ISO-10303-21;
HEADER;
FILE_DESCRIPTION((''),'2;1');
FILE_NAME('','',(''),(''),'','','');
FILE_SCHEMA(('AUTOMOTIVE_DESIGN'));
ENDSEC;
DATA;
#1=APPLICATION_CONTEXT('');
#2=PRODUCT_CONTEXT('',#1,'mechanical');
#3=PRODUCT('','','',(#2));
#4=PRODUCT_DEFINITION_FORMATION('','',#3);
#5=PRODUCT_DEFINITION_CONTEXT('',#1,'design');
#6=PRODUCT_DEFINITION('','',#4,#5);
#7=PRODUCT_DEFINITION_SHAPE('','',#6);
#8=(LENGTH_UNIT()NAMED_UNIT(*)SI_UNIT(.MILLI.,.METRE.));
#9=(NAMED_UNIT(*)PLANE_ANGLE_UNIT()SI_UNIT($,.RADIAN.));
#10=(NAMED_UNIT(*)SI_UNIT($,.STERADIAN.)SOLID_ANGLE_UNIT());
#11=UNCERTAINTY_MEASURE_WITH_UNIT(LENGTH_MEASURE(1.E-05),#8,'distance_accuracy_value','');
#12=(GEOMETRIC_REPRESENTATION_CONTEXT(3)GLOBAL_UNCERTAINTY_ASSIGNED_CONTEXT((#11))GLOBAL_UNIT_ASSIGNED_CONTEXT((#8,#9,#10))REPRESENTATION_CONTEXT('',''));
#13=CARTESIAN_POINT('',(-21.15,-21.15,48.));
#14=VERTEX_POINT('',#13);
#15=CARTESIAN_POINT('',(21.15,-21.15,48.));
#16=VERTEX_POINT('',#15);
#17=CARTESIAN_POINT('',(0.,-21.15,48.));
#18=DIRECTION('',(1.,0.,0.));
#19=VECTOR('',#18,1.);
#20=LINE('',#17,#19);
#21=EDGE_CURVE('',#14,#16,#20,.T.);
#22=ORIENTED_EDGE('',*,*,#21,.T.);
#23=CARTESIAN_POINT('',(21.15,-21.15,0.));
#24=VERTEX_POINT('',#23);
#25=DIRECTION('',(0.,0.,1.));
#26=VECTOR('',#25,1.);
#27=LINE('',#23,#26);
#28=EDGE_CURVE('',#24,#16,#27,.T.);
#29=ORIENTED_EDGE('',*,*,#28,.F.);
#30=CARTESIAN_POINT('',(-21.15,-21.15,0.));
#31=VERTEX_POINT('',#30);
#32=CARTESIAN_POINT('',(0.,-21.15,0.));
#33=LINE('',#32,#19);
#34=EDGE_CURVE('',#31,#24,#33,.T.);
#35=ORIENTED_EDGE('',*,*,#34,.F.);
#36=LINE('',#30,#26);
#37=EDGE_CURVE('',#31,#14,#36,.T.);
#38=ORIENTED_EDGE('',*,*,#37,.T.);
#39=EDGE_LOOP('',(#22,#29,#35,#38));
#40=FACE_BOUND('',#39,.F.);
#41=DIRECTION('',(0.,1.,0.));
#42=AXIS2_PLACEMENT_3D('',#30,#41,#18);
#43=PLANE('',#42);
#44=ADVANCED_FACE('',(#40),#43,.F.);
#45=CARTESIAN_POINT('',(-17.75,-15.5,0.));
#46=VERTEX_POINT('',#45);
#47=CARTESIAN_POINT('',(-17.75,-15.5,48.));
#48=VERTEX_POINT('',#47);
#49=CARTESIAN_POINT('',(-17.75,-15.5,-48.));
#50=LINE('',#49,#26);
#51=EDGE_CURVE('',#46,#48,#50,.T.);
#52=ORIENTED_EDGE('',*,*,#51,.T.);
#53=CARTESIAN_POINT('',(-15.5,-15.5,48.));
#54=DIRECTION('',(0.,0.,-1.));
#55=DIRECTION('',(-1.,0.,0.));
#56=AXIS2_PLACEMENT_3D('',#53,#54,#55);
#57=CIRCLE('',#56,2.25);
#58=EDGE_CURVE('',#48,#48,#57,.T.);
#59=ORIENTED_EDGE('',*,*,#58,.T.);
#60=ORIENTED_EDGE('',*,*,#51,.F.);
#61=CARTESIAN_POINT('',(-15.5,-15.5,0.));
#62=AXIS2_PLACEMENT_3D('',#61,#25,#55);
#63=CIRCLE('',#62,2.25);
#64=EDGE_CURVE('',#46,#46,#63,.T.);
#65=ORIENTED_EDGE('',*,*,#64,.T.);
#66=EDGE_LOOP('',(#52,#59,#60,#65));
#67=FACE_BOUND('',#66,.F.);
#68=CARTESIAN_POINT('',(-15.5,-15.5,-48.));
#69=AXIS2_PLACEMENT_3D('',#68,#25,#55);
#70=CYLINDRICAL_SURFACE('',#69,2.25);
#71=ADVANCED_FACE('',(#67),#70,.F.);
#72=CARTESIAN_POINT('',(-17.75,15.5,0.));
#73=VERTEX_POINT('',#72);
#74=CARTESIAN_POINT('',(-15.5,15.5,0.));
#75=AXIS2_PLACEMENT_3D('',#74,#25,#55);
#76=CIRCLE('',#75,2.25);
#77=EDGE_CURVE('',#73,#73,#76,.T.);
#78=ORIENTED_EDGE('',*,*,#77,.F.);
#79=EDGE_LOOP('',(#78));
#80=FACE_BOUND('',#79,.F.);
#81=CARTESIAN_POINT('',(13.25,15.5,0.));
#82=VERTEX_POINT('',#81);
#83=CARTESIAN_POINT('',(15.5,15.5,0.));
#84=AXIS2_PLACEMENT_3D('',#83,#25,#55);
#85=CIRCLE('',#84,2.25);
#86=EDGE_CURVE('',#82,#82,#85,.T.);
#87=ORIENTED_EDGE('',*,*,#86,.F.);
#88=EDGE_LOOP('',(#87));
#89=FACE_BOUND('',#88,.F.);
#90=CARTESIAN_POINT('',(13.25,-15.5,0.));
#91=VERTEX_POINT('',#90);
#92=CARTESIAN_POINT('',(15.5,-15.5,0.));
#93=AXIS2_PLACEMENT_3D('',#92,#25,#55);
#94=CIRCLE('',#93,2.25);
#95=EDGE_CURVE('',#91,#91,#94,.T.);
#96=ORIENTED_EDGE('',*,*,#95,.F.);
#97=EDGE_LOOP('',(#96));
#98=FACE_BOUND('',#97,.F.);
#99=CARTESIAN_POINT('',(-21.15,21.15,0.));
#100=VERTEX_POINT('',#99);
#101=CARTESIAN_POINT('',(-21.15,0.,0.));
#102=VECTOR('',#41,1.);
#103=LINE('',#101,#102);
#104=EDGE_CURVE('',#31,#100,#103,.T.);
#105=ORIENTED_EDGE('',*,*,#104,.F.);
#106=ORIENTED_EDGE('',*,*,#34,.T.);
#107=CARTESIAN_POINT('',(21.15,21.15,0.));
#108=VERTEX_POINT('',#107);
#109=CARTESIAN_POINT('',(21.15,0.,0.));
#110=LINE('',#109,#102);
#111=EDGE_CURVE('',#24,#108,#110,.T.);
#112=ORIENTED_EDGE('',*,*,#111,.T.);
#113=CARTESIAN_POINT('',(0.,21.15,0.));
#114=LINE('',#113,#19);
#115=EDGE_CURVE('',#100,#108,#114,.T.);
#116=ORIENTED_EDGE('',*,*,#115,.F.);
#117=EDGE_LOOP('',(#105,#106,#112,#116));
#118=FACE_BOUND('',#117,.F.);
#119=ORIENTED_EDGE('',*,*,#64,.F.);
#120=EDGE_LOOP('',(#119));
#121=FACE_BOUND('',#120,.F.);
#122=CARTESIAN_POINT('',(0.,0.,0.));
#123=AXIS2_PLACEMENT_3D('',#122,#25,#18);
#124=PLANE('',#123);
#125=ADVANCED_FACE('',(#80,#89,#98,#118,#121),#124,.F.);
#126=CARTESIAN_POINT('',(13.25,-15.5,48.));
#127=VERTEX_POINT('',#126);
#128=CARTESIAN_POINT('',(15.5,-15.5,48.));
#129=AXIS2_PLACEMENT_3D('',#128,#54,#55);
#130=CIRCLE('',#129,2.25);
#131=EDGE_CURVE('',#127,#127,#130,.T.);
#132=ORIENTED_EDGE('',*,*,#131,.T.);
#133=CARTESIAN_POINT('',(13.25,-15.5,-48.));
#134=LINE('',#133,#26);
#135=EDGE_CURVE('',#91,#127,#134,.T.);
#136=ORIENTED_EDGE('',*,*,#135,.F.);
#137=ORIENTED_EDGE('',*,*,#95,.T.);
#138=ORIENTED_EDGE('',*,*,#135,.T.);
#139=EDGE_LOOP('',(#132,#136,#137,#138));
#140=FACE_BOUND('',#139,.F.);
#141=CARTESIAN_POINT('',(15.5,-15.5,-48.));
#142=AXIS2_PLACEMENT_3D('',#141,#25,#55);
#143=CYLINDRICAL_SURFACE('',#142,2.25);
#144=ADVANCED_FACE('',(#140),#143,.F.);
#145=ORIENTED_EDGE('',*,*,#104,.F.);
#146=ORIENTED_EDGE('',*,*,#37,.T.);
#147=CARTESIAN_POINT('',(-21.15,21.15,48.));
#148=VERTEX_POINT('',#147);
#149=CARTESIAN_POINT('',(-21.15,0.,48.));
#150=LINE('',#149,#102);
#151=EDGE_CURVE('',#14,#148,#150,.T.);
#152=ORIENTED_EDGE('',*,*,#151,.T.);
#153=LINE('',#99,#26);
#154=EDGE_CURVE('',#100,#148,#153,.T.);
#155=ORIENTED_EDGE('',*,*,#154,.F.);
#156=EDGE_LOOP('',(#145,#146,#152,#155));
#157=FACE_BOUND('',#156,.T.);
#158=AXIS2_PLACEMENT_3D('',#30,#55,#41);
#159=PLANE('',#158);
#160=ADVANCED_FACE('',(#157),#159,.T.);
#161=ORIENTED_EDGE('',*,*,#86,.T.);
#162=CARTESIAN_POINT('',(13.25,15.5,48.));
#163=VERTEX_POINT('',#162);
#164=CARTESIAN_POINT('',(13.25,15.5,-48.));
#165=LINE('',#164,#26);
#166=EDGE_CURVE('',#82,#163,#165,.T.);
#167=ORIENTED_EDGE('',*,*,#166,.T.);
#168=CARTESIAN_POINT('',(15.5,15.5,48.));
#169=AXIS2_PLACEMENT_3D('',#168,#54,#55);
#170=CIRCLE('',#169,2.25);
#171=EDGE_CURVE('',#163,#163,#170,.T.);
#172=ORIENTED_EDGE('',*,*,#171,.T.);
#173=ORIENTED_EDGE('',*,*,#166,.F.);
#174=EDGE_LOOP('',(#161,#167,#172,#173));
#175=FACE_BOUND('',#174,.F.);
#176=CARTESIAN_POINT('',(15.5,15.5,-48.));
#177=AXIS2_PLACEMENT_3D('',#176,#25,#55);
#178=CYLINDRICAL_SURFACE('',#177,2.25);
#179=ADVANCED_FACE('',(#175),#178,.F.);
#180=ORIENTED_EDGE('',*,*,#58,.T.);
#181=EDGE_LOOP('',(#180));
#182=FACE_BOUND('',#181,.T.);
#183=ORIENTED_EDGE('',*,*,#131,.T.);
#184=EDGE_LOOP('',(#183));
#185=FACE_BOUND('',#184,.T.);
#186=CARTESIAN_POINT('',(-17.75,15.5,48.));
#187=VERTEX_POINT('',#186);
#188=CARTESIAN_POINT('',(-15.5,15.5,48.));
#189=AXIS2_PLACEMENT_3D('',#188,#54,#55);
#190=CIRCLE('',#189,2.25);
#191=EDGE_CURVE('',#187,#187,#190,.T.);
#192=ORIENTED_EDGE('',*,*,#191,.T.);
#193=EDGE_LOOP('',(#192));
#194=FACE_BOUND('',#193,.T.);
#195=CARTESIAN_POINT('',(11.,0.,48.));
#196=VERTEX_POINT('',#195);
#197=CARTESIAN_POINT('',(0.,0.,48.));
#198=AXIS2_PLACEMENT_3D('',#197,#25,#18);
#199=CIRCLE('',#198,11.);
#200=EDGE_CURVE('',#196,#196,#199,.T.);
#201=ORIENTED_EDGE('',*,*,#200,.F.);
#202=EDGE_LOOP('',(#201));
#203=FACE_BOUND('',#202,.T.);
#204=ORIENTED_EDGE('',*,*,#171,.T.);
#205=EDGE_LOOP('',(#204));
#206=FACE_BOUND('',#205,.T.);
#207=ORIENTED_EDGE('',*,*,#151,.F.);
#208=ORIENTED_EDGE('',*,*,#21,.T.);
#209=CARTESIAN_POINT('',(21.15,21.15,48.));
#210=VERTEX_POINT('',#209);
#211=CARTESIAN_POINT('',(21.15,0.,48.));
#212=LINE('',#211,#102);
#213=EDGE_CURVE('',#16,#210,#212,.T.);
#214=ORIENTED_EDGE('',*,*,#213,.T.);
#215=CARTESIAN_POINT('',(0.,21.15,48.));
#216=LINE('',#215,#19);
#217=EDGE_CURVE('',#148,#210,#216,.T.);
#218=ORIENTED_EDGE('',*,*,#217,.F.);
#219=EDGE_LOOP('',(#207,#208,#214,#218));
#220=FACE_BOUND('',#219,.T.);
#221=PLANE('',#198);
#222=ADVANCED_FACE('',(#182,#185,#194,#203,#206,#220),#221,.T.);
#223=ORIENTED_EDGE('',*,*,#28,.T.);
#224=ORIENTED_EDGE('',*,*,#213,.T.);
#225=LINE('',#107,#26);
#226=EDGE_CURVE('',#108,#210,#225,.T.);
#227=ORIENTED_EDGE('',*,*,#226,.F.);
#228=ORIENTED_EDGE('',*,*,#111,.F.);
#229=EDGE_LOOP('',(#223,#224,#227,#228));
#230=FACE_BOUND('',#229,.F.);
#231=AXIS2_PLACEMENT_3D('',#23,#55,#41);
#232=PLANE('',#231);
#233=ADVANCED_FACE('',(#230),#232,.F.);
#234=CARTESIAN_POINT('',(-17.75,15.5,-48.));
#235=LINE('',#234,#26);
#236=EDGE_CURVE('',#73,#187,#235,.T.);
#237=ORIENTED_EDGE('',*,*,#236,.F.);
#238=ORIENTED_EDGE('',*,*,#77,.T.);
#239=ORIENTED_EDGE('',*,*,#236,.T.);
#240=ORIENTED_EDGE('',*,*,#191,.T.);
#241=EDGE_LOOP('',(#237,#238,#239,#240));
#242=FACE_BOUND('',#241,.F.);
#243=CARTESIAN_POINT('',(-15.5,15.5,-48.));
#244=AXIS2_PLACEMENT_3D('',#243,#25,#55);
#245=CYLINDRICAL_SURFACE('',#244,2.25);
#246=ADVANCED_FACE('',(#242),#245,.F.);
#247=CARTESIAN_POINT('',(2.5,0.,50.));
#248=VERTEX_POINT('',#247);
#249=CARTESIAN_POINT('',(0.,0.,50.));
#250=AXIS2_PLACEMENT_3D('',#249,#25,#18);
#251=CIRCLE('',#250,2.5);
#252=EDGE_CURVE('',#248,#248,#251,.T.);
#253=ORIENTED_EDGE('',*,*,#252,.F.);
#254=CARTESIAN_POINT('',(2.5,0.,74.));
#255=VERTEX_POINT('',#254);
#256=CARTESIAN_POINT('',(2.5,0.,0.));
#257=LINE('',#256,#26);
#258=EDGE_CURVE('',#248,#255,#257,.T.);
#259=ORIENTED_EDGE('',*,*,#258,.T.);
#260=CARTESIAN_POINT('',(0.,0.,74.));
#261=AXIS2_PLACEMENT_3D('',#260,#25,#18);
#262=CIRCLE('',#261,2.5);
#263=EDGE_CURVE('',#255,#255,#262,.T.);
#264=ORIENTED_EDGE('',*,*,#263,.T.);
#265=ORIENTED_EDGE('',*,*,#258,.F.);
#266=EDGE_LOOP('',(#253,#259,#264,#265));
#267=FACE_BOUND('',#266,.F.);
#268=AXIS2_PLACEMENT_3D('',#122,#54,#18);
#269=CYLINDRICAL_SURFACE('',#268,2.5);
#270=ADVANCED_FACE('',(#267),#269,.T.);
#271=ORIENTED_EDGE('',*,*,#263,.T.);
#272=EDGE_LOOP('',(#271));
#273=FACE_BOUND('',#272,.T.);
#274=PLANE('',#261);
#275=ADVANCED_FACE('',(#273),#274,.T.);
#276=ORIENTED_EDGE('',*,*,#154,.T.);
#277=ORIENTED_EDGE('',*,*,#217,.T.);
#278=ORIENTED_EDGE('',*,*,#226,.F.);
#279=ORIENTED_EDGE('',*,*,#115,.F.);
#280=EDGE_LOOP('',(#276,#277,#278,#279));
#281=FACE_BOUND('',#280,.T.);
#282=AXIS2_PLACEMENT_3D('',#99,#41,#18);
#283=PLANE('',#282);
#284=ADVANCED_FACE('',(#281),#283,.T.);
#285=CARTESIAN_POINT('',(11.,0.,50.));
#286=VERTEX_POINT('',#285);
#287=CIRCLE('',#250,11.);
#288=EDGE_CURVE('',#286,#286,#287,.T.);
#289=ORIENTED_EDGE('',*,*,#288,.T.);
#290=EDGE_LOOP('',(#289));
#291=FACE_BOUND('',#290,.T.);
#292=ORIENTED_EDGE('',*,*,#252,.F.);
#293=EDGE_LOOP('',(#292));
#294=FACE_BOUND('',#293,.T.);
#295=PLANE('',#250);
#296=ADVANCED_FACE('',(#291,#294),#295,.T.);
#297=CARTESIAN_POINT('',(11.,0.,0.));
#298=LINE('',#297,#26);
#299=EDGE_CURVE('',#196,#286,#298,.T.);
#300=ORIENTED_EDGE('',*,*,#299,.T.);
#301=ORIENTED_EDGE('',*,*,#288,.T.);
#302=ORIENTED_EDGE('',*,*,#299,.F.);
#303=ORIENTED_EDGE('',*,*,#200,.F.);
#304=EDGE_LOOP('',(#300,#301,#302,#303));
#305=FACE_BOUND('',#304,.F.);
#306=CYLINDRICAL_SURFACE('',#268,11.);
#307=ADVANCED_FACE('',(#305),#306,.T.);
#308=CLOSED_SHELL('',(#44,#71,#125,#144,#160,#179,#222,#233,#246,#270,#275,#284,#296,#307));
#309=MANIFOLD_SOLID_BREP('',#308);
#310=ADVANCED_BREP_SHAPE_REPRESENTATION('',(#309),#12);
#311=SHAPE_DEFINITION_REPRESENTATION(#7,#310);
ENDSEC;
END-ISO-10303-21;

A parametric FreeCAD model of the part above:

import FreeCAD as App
import Part
import Sketcher
Q = App.Units.Quantity


def add_polygon(sketch, points):
    """Adds a closed chain of lines whose ends are joined by coincident constraints."""
    first, n = sketch.GeometryCount, len(points)
    for a, b in zip(points, points[1:] + points[:1]):
        sketch.addGeometry(Part.LineSegment(App.Vector(*a, 0), App.Vector(*b, 0)), False)
    for i in range(n):
        sketch.addConstraint(Sketcher.Constraint("Coincident", first + i, 2, first + (i + 1) % n, 1))

doc = App.newDocument("Part")
body = doc.addObject("PartDesign::Body", "Body")

# Sketch on XY plane
sketch1 = doc.addObject("Sketcher::SketchObject", "Sketch")
body.addObject(sketch1)
sketch1.AttachmentSupport = (doc.XY_Plane, [""])
sketch1.MapMode = "FlatFace"
add_polygon(sketch1, [(-21, 21), (-21, -21), (21, -21), (21, 21)])  # lines 0-3
sketch1.addGeometry(Part.Circle(App.Vector(0, 0, 0), App.Vector(0, 0, 1), 11), False)  # 4
sketch1.addConstraint(Sketcher.Constraint("Vertical", 0))
sketch1.addConstraint(Sketcher.Constraint("Horizontal", 1))
sketch1.addConstraint(Sketcher.Constraint("Vertical", 2))
sketch1.addConstraint(Sketcher.Constraint("Horizontal", 3))
sketch1.addConstraint(Sketcher.Constraint("Coincident", 4, 3, -1, 1))
sketch1.addConstraint(Sketcher.Constraint("Symmetric", 0, 2, 2, 2, -1, 1))
sketch1.addConstraint(Sketcher.Constraint("Equal", 3, 0))
sketch1.addConstraint(Sketcher.Constraint("Diameter", 4, Q("22 mm")))
sketch1.addConstraint(Sketcher.Constraint("DistanceX", 1, 1, 1, 2, Q("42.3 mm")))
pad1 = doc.addObject("PartDesign::Pad", "Pad")
body.addObject(pad1)
pad1.Profile = sketch1
pad1.Length = 48

# Sketch on XY plane
sketch2 = doc.addObject("Sketcher::SketchObject", "Sketch001")
body.addObject(sketch2)
sketch2.AttachmentSupport = (doc.XY_Plane, [""])
sketch2.MapMode = "FlatFace"
sketch2.addGeometry(Part.Circle(App.Vector(0, 0, 0), App.Vector(0, 0, 1), 11), False)
sketch2.addGeometry(Part.Circle(App.Vector(0, 0, 0), App.Vector(0, 0, 1), 2.5), False)
sketch2.addConstraint(Sketcher.Constraint("Coincident", 0, 3, -1, 1))
sketch2.addConstraint(Sketcher.Constraint("Coincident", 1, 3, -1, 1))
sketch2.addConstraint(Sketcher.Constraint("Diameter", 0, Q("22 mm")))
sketch2.addConstraint(Sketcher.Constraint("Diameter", 1, Q("5 mm")))
pad2 = doc.addObject("PartDesign::Pad", "Pad001")
body.addObject(pad2)
pad2.Profile = sketch2
pad2.Length = 50

# Sketch on XY plane
sketch3 = doc.addObject("Sketcher::SketchObject", "Sketch002")
body.addObject(sketch3)
sketch3.AttachmentSupport = (doc.XY_Plane, [""])
sketch3.MapMode = "FlatFace"
sketch3.addGeometry(Part.Circle(App.Vector(0, 0, 0), App.Vector(0, 0, 1), 2.5), False)
sketch3.addConstraint(Sketcher.Constraint("Coincident", 0, 3, -1, 1))
sketch3.addConstraint(Sketcher.Constraint("Diameter", 0, Q("5 mm")))
pad3 = doc.addObject("PartDesign::Pad", "Pad002")
body.addObject(pad3)
pad3.Profile = sketch3
pad3.Length = 74

# Sketch on XY plane
sketch4 = doc.addObject("Sketcher::SketchObject", "Sketch003")
body.addObject(sketch4)
sketch4.AttachmentSupport = (doc.XY_Plane, [""])
sketch4.MapMode = "FlatFace"
sketch4.addGeometry(Part.Circle(App.Vector(15.5, 15.5, 0), App.Vector(0, 0, 1), 2.2), False)
sketch4.addGeometry(Part.Circle(App.Vector(-15.5, 15.5, 0), App.Vector(0, 0, 1), 2.2), False)
sketch4.addGeometry(Part.Circle(App.Vector(-15.5, -15.5, 0), App.Vector(0, 0, 1), 2.2), False)
sketch4.addGeometry(Part.Circle(App.Vector(15.5, -15.5, 0), App.Vector(0, 0, 1), 2.2), False)
sketch4.addConstraint(Sketcher.Constraint("Equal", 0, 1))
sketch4.addConstraint(Sketcher.Constraint("Equal", 1, 2))
sketch4.addConstraint(Sketcher.Constraint("Equal", 2, 3))
sketch4.addConstraint(Sketcher.Constraint("Symmetric", 0, 3, 2, 3, -1, 1))
sketch4.addConstraint(Sketcher.Constraint("Symmetric", 1, 3, 3, 3, -1, 1))
sketch4.addConstraint(Sketcher.Constraint("Symmetric", 0, 3, 1, 3, -2))
sketch4.addConstraint(Sketcher.Constraint("Diameter", 0, Q("4.5 mm")))
sketch4.addConstraint(Sketcher.Constraint("DistanceX", 1, 3, 0, 3, Q("31 mm")))
sketch4.addConstraint(Sketcher.Constraint("DistanceY", 2, 3, 1, 3, Q("31 mm")))
doc.recompute()
hole = doc.addObject("PartDesign::Hole", "Hole")
body.addObject(hole)
hole.Profile = sketch4
hole.ThreadType = "None"
hole.Diameter = 4.5
hole.DepthType = "Dimension"
hole.Depth = 48
hole.DrillPoint = "Angled"
hole.DrillPointAngle = 118
hole.Reversed = True

doc.recompute()
